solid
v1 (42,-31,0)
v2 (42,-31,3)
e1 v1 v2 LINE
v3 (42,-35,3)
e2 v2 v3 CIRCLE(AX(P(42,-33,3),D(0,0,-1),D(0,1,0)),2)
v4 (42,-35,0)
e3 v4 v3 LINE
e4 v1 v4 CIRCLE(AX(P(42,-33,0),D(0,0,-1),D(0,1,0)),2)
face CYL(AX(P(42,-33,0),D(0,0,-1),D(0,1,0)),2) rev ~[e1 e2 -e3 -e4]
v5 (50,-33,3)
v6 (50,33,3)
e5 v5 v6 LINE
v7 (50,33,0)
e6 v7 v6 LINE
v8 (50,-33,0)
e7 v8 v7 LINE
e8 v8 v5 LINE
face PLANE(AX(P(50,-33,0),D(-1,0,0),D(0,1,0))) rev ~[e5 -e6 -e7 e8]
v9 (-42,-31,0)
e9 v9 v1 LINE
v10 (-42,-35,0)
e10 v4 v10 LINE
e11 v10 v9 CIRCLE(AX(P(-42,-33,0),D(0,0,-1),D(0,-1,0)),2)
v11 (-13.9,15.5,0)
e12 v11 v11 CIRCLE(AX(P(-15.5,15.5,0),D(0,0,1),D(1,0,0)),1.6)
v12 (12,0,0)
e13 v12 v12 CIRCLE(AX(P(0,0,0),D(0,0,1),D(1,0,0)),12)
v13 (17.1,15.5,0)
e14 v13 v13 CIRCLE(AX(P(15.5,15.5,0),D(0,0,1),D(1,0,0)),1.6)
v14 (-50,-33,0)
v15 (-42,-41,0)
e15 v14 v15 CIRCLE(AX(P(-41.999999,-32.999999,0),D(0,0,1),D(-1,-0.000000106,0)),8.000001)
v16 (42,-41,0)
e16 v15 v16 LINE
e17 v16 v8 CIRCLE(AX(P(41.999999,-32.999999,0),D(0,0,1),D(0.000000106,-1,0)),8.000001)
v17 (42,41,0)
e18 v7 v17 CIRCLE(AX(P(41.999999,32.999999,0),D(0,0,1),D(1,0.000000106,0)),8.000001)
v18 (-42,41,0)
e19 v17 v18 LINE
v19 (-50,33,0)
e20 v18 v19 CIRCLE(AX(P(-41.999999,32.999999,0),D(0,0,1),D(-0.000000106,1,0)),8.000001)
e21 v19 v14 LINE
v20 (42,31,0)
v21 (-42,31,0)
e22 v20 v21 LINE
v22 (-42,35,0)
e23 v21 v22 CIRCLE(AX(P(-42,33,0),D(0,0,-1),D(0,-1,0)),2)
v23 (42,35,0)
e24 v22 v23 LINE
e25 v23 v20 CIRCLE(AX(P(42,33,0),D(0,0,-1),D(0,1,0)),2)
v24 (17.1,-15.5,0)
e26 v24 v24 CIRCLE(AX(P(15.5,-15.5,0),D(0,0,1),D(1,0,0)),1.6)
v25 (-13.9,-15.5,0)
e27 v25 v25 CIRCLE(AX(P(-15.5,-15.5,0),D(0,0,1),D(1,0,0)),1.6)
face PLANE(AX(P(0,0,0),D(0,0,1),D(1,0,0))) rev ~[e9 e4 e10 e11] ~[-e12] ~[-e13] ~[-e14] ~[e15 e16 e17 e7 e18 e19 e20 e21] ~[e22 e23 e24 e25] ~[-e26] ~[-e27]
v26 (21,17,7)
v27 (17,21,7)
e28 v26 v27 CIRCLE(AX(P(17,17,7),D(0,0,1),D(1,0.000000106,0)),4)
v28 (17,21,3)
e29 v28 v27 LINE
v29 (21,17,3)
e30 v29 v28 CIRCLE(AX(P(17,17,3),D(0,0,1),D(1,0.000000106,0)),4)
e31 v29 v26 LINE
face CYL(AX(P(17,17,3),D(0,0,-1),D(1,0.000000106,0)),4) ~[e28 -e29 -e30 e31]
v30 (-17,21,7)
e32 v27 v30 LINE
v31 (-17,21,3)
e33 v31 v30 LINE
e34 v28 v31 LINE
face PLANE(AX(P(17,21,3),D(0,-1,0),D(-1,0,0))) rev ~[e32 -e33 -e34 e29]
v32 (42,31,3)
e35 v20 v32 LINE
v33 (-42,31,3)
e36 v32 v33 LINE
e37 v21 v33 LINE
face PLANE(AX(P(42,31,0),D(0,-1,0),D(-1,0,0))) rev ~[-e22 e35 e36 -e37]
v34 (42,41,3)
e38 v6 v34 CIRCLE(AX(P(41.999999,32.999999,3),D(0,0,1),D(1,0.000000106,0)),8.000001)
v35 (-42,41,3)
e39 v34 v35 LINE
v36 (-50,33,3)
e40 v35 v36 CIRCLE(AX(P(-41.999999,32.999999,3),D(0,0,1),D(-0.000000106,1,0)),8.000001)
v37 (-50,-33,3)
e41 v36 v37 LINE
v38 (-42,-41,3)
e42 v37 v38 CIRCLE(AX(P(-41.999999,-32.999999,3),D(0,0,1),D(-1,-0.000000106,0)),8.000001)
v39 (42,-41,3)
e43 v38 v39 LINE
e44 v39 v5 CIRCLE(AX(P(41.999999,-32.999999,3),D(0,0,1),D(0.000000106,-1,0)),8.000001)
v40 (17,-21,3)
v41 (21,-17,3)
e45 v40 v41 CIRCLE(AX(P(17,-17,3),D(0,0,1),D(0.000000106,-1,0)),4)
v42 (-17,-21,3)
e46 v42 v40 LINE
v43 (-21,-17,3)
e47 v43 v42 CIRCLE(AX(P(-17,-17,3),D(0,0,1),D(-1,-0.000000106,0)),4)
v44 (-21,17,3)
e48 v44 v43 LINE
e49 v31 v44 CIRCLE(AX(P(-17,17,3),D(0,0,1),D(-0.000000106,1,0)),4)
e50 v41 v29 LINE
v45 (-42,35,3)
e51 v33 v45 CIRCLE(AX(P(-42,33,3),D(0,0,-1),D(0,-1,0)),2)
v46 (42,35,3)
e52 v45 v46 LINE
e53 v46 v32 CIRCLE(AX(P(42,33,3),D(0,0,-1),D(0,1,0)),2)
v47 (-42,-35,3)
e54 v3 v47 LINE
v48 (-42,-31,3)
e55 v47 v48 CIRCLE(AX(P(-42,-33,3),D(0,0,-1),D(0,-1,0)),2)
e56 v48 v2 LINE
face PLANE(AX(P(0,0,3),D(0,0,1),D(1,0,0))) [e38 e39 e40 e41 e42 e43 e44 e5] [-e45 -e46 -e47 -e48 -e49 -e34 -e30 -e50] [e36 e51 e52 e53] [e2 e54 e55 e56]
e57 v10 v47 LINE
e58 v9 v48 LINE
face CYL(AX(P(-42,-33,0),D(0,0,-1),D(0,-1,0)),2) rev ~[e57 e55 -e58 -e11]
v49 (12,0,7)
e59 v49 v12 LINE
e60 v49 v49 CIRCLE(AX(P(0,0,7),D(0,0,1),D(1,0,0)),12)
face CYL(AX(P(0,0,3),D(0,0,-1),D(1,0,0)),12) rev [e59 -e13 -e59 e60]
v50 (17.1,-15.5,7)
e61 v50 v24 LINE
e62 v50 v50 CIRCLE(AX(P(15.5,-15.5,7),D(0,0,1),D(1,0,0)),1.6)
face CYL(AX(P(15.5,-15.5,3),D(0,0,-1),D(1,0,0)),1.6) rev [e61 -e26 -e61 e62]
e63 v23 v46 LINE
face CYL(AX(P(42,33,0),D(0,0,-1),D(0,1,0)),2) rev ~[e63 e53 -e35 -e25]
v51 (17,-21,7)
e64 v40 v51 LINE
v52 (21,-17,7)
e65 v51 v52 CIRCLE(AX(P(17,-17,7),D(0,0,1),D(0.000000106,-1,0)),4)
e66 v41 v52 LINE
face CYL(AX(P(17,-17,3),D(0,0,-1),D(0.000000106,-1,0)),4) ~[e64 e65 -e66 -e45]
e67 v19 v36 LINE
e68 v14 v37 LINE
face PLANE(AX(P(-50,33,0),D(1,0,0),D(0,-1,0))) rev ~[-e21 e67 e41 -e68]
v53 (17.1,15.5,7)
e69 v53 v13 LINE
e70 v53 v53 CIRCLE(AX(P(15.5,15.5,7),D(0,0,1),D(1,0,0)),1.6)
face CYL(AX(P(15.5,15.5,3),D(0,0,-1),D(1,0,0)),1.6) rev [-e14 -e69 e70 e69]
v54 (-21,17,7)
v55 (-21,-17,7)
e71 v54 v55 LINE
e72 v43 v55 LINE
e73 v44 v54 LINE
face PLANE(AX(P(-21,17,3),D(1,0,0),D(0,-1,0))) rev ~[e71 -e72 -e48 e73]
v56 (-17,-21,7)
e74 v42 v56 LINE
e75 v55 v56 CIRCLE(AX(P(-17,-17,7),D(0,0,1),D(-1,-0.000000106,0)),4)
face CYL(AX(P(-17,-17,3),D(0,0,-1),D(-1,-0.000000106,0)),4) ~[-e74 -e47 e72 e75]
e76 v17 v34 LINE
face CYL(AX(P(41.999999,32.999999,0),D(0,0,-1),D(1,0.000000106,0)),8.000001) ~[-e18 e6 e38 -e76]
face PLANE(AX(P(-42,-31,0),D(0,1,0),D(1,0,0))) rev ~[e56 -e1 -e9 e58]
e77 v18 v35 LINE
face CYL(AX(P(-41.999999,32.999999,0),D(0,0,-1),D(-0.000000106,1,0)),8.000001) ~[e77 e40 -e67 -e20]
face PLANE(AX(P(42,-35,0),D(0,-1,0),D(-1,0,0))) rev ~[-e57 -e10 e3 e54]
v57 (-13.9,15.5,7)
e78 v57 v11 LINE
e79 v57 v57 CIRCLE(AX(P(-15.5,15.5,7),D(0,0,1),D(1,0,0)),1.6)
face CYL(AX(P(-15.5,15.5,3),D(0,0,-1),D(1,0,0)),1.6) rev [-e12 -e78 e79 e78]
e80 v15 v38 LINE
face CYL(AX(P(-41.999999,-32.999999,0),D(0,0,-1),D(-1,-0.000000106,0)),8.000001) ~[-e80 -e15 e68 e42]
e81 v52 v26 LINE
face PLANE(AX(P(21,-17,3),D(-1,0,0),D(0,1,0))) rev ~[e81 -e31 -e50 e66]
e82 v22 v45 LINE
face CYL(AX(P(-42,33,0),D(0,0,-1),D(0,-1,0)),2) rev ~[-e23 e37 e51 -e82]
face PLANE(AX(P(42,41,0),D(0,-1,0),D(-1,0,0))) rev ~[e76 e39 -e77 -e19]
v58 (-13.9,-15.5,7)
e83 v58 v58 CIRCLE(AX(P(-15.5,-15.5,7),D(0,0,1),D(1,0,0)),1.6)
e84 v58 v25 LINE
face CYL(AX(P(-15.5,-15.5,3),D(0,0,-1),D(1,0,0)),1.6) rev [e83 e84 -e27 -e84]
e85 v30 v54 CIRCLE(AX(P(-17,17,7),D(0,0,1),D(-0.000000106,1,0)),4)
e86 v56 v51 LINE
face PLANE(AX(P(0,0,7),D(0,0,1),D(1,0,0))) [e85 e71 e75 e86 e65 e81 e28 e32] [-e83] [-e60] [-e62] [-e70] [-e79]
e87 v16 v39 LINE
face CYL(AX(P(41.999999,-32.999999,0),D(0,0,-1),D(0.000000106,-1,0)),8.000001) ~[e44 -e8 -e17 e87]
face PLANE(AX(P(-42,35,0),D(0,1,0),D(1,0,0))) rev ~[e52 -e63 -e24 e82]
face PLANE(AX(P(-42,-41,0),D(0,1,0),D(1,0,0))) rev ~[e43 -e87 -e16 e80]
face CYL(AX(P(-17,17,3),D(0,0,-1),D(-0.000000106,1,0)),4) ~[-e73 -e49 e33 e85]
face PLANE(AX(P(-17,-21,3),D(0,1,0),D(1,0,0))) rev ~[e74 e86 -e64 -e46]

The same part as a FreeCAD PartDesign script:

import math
import FreeCAD as App
import Part
import Sketcher
from FreeCAD import Vector

doc = App.newDocument("Part")
params = doc.addObject("Spreadsheet::Sheet", "Params")
for row, (alias, value) in enumerate([
    ("sketch1_diameter", "24 mm"),
    ("sketch1_radius", "8.000001 mm"),
    ("sketch1_radius2", "2 mm"),
    ("sketch1_diameter2", "3.2 mm"),
    ("sketch1_width", "84 mm"),
    ("pad1_length", "3 mm"),
    ("sketch2_diameter", "24 mm"),
    ("sketch2_radius", "4 mm"),
    ("sketch2_diameter2", "3.2 mm"),
    ("sketch2_width", "34 mm"),
    ("pad2_length", "4 mm"),
], start=1):
    params.set(f"A{row}", alias)
    params.set(f"B{row}", "=" + value)
    params.setAlias(f"B{row}", alias)

body = doc.addObject("PartDesign::Body", "Body")

# Sketch on XY plane
sketch1 = body.newObject("Sketcher::SketchObject", "Sketch")
sketch1.AttachmentSupport = (doc.getObject("XY_Plane"), [""])
sketch1.MapMode = "FlatFace"
sketch1.addGeometry(Part.ArcOfCircle(Part.Circle(Vector(42, 33, 0), Vector(0, 0, 1), 8), math.radians(0), math.radians(90)), False)
sketch1.addGeometry(Part.LineSegment(Vector(42, 41, 0), Vector(-42, 41, 0)), False)
sketch1.addGeometry(Part.ArcOfCircle(Part.Circle(Vector(-42, 33, 0), Vector(0, 0, 1), 8), math.radians(90), math.radians(180)), False)
sketch1.addGeometry(Part.LineSegment(Vector(-50, 33, 0), Vector(-50, -33, 0)), False)
sketch1.addGeometry(Part.ArcOfCircle(Part.Circle(Vector(-42, -33, 0), Vector(0, 0, 1), 8), math.radians(-180), math.radians(-90)), False)
sketch1.addGeometry(Part.LineSegment(Vector(-42, -41, 0), Vector(42, -41, 0)), False)
sketch1.addGeometry(Part.ArcOfCircle(Part.Circle(Vector(42, -33, 0), Vector(0, 0, 1), 8), math.radians(-90), math.radians(0)), False)
sketch1.addGeometry(Part.LineSegment(Vector(50, -33, 0), Vector(50, 33, 0)), False)
sketch1.addGeometry(Part.Circle(Vector(-15.5, -15.5, 0), Vector(0, 0, 1), 1.6), False)
sketch1.addGeometry(Part.ArcOfCircle(Part.Circle(Vector(42, -33, 0), Vector(0, 0, 1), 2), math.radians(-90), math.radians(90)), False)
sketch1.addGeometry(Part.LineSegment(Vector(42, -35, 0), Vector(-42, -35, 0)), False)
sketch1.addGeometry(Part.ArcOfCircle(Part.Circle(Vector(-42, -33, 0), Vector(0, 0, 1), 2), math.radians(90), math.radians(270)), False)
sketch1.addGeometry(Part.LineSegment(Vector(-42, -31, 0), Vector(42, -31, 0)), False)
sketch1.addGeometry(Part.Circle(Vector(15.5, -15.5, 0), Vector(0, 0, 1), 1.6), False)
sketch1.addGeometry(Part.Circle(Vector(-15.5, 15.5, 0), Vector(0, 0, 1), 1.6), False)
sketch1.addGeometry(Part.Circle(Vector(0, 0, 0), Vector(0, 0, 1), 12), False)
sketch1.addGeometry(Part.Circle(Vector(15.5, 15.5, 0), Vector(0, 0, 1), 1.6), False)
sketch1.addGeometry(Part.ArcOfCircle(Part.Circle(Vector(42, 33, 0), Vector(0, 0, 1), 2), math.radians(-90), math.radians(90)), False)
sketch1.addGeometry(Part.LineSegment(Vector(42, 31, 0), Vector(-42, 31, 0)), False)
sketch1.addGeometry(Part.ArcOfCircle(Part.Circle(Vector(-42, 33, 0), Vector(0, 0, 1), 2), math.radians(90), math.radians(270)), False)
sketch1.addGeometry(Part.LineSegment(Vector(-42, 35, 0), Vector(42, 35, 0)), False)
sketch1.addConstraint(Sketcher.Constraint("Tangent", 0, 2, 1, 1))
sketch1.addConstraint(Sketcher.Constraint("Tangent", 1, 2, 2, 1))
sketch1.addConstraint(Sketcher.Constraint("Tangent", 2, 2, 3, 1))
sketch1.addConstraint(Sketcher.Constraint("Tangent", 3, 2, 4, 1))
sketch1.addConstraint(Sketcher.Constraint("Tangent", 4, 2, 5, 1))
sketch1.addConstraint(Sketcher.Constraint("Tangent", 5, 2, 6, 1))
sketch1.addConstraint(Sketcher.Constraint("Tangent", 6, 2, 7, 1))
sketch1.addConstraint(Sketcher.Constraint("Tangent", 7, 2, 0, 1))
sketch1.addConstraint(Sketcher.Constraint("Tangent", 9, 1, 10, 1))
sketch1.addConstraint(Sketcher.Constraint("Tangent", 10, 2, 11, 2))
sketch1.addConstraint(Sketcher.Constraint("Tangent", 11, 1, 12, 1))
sketch1.addConstraint(Sketcher.Constraint("Tangent", 12, 2, 9, 2))
sketch1.addConstraint(Sketcher.Constraint("Tangent", 17, 1, 18, 1))
sketch1.addConstraint(Sketcher.Constraint("Tangent", 18, 2, 19, 2))
sketch1.addConstraint(Sketcher.Constraint("Tangent", 19, 1, 20, 1))
sketch1.addConstraint(Sketcher.Constraint("Tangent", 20, 2, 17, 2))
sketch1.addConstraint(Sketcher.Constraint("Horizontal", 1))
sketch1.addConstraint(Sketcher.Constraint("Vertical", 3))
sketch1.addConstraint(Sketcher.Constraint("Horizontal", 5))
sketch1.addConstraint(Sketcher.Constraint("Vertical", 7))
sketch1.addConstraint(Sketcher.Constraint("Horizontal", 10))
sketch1.addConstraint(Sketcher.Constraint("Horizontal", 12))
sketch1.addConstraint(Sketcher.Constraint("Horizontal", 18))
sketch1.addConstraint(Sketcher.Constraint("Horizontal", 20))
sketch1.addConstraint(Sketcher.Constraint("Coincident", 15, 3, -1, 1))
sketch1.addConstraint(Sketcher.Constraint("Coincident", 9, 3, 6, 3))
sketch1.addConstraint(Sketcher.Constraint("Coincident", 11, 3, 4, 3))
sketch1.addConstraint(Sketcher.Constraint("Coincident", 17, 3, 0, 3))
sketch1.addConstraint(Sketcher.Constraint("Coincident", 19, 3, 2, 3))
sketch1.addConstraint(Sketcher.Constraint("Equal", 2, 4))
sketch1.addConstraint(Sketcher.Constraint("Equal", 8, 13))
sketch1.addConstraint(Sketcher.Constraint("Equal", 13, 14))
sketch1.addConstraint(Sketcher.Constraint("Equal", 14, 16))
sketch1.addConstraint(Sketcher.Constraint("Equal", 11, 17))
sketch1.addConstraint(Sketcher.Constraint("Symmetric", 0, 3, 4, 3, -1, 1))
sketch1.addConstraint(Sketcher.Constraint("Symmetric", 13, 3, 14, 3, -1, 1))
sketch1.addConstraint(Sketcher.Constraint("Symmetric", 8, 3, 16, 3, -1, 1))
sketch1.addConstraint(Sketcher.Constraint("Symmetric", 8, 3, 13, 3, -2))
sketch1.addConstraint(Sketcher.Constraint("Diameter", 15, 24.0))
sketch1.addConstraint(Sketcher.Constraint("Radius", 0, 8.000001))
sketch1.addConstraint(Sketcher.Constraint("Radius", 9, 2.0))
sketch1.addConstraint(Sketcher.Constraint("Diameter", 8, 3.2))
sketch1.addConstraint(Sketcher.Constraint("DistanceX", 1, 2, 1, 1, 84.0))
sketch1.addConstraint(Sketcher.Constraint("DistanceY", 3, 2, 3, 1, 66.0))
sketch1.addConstraint(Sketcher.Constraint("DistanceX", 8, 3, 13, 3, 31.0))
sketch1.addConstraint(Sketcher.Constraint("DistanceY", 8, 3, 14, 3, 31.0))
sketch1.setExpression("Constraints[38]", "Params.sketch1_diameter")
sketch1.setExpression("Constraints[39]", "Params.sketch1_radius")
sketch1.setExpression("Constraints[40]", "Params.sketch1_radius2")
sketch1.setExpression("Constraints[41]", "Params.sketch1_diameter2")
sketch1.setExpression("Constraints[42]", "Params.sketch1_width")
pad1 = body.newObject("PartDesign::Pad", "Pad")
pad1.Profile = sketch1
pad1.setExpression("Length", "Params.pad1_length")

# Sketch on XY plane
sketch2 = body.newObject("Sketcher::SketchObject", "Sketch001")
sketch2.AttachmentSupport = (doc.getObject("XY_Plane"), [""])
sketch2.MapMode = "FlatFace"
sketch2.AttachmentOffset = App.Placement(Vector(0, 0, 3), App.Rotation())
sketch2.addGeometry(Part.ArcOfCircle(Part.Circle(Vector(17, 17, 0), Vector(0, 0, 1), 4), math.radians(0), math.radians(90)), False)
sketch2.addGeometry(Part.LineSegment(Vector(17, 21, 0), Vector(-17, 21, 0)), False)
sketch2.addGeometry(Part.ArcOfCircle(Part.Circle(Vector(-17, 17, 0), Vector(0, 0, 1), 4), math.radians(90), math.radians(180)), False)
sketch2.addGeometry(Part.LineSegment(Vector(-21, 17, 0), Vector(-21, -17, 0)), False)
sketch2.addGeometry(Part.ArcOfCircle(Part.Circle(Vector(-17, -17, 0), Vector(0, 0, 1), 4), math.radians(-180), math.radians(-90)), False)
sketch2.addGeometry(Part.LineSegment(Vector(-17, -21, 0), Vector(17, -21, 0)), False)
sketch2.addGeometry(Part.ArcOfCircle(Part.Circle(Vector(17, -17, 0), Vector(0, 0, 1), 4), math.radians(-90), math.radians(0)), False)
sketch2.addGeometry(Part.LineSegment(Vector(21, -17, 0), Vector(21, 17, 0)), False)
sketch2.addGeometry(Part.Circle(Vector(-15.5, -15.5, 0), Vector(0, 0, 1), 1.6), False)
sketch2.addGeometry(Part.Circle(Vector(15.5, -15.5, 0), Vector(0, 0, 1), 1.6), False)
sketch2.addGeometry(Part.Circle(Vector(-15.5, 15.5, 0), Vector(0, 0, 1), 1.6), False)
sketch2.addGeometry(Part.Circle(Vector(0, 0, 0), Vector(0, 0, 1), 12), False)
sketch2.addGeometry(Part.Circle(Vector(15.5, 15.5, 0), Vector(0, 0, 1), 1.6), False)
sketch2.addConstraint(Sketcher.Constraint("Tangent", 0, 2, 1, 1))
sketch2.addConstraint(Sketcher.Constraint("Tangent", 1, 2, 2, 1))
sketch2.addConstraint(Sketcher.Constraint("Tangent", 2, 2, 3, 1))
sketch2.addConstraint(Sketcher.Constraint("Tangent", 3, 2, 4, 1))
sketch2.addConstraint(Sketcher.Constraint("Tangent", 4, 2, 5, 1))
sketch2.addConstraint(Sketcher.Constraint("Tangent", 5, 2, 6, 1))
sketch2.addConstraint(Sketcher.Constraint("Tangent", 6, 2, 7, 1))
sketch2.addConstraint(Sketcher.Constraint("Tangent", 7, 2, 0, 1))
sketch2.addConstraint(Sketcher.Constraint("Horizontal", 1))
sketch2.addConstraint(Sketcher.Constraint("Vertical", 3))
sketch2.addConstraint(Sketcher.Constraint("Horizontal", 5))
sketch2.addConstraint(Sketcher.Constraint("Vertical", 7))
sketch2.addConstraint(Sketcher.Constraint("Coincident", 11, 3, -1, 1))
sketch2.addConstraint(Sketcher.Constraint("Equal", 0, 2))
sketch2.addConstraint(Sketcher.Constraint("Equal", 2, 4))
sketch2.addConstraint(Sketcher.Constraint("Equal", 4, 6))
sketch2.addConstraint(Sketcher.Constraint("Equal", 8, 9))
sketch2.addConstraint(Sketcher.Constraint("Equal", 9, 10))
sketch2.addConstraint(Sketcher.Constraint("Equal", 10, 12))
sketch2.addConstraint(Sketcher.Constraint("Symmetric", 0, 3, 4, 3, -1, 1))
sketch2.addConstraint(Sketcher.Constraint("Symmetric", 9, 3, 10, 3, -1, 1))
sketch2.addConstraint(Sketcher.Constraint("Symmetric", 8, 3, 12, 3, -1, 1))
sketch2.addConstraint(Sketcher.Constraint("Symmetric", 8, 3, 9, 3, -2))
sketch2.addConstraint(Sketcher.Constraint("Equal", 5, 3))
sketch2.addConstraint(Sketcher.Constraint("Diameter", 11, 24.0))
sketch2.addConstraint(Sketcher.Constraint("Radius", 0, 4.0))
sketch2.addConstraint(Sketcher.Constraint("Diameter", 8, 3.2))
sketch2.addConstraint(Sketcher.Constraint("DistanceX", 1, 2, 1, 1, 34.0))
sketch2.addConstraint(Sketcher.Constraint("DistanceX", 8, 3, 9, 3, 31.0))
sketch2.addConstraint(Sketcher.Constraint("DistanceY", 8, 3, 10, 3, 31.0))
sketch2.setExpression("Constraints[24]", "Params.sketch2_diameter")
sketch2.setExpression("Constraints[25]", "Params.sketch2_radius")
sketch2.setExpression("Constraints[26]", "Params.sketch2_diameter2")
sketch2.setExpression("Constraints[27]", "Params.sketch2_width")
pad2 = body.newObject("PartDesign::Pad", "Pad001")
pad2.Profile = sketch2
pad2.setExpression("Length", "Params.pad2_length")

doc.recompute()
